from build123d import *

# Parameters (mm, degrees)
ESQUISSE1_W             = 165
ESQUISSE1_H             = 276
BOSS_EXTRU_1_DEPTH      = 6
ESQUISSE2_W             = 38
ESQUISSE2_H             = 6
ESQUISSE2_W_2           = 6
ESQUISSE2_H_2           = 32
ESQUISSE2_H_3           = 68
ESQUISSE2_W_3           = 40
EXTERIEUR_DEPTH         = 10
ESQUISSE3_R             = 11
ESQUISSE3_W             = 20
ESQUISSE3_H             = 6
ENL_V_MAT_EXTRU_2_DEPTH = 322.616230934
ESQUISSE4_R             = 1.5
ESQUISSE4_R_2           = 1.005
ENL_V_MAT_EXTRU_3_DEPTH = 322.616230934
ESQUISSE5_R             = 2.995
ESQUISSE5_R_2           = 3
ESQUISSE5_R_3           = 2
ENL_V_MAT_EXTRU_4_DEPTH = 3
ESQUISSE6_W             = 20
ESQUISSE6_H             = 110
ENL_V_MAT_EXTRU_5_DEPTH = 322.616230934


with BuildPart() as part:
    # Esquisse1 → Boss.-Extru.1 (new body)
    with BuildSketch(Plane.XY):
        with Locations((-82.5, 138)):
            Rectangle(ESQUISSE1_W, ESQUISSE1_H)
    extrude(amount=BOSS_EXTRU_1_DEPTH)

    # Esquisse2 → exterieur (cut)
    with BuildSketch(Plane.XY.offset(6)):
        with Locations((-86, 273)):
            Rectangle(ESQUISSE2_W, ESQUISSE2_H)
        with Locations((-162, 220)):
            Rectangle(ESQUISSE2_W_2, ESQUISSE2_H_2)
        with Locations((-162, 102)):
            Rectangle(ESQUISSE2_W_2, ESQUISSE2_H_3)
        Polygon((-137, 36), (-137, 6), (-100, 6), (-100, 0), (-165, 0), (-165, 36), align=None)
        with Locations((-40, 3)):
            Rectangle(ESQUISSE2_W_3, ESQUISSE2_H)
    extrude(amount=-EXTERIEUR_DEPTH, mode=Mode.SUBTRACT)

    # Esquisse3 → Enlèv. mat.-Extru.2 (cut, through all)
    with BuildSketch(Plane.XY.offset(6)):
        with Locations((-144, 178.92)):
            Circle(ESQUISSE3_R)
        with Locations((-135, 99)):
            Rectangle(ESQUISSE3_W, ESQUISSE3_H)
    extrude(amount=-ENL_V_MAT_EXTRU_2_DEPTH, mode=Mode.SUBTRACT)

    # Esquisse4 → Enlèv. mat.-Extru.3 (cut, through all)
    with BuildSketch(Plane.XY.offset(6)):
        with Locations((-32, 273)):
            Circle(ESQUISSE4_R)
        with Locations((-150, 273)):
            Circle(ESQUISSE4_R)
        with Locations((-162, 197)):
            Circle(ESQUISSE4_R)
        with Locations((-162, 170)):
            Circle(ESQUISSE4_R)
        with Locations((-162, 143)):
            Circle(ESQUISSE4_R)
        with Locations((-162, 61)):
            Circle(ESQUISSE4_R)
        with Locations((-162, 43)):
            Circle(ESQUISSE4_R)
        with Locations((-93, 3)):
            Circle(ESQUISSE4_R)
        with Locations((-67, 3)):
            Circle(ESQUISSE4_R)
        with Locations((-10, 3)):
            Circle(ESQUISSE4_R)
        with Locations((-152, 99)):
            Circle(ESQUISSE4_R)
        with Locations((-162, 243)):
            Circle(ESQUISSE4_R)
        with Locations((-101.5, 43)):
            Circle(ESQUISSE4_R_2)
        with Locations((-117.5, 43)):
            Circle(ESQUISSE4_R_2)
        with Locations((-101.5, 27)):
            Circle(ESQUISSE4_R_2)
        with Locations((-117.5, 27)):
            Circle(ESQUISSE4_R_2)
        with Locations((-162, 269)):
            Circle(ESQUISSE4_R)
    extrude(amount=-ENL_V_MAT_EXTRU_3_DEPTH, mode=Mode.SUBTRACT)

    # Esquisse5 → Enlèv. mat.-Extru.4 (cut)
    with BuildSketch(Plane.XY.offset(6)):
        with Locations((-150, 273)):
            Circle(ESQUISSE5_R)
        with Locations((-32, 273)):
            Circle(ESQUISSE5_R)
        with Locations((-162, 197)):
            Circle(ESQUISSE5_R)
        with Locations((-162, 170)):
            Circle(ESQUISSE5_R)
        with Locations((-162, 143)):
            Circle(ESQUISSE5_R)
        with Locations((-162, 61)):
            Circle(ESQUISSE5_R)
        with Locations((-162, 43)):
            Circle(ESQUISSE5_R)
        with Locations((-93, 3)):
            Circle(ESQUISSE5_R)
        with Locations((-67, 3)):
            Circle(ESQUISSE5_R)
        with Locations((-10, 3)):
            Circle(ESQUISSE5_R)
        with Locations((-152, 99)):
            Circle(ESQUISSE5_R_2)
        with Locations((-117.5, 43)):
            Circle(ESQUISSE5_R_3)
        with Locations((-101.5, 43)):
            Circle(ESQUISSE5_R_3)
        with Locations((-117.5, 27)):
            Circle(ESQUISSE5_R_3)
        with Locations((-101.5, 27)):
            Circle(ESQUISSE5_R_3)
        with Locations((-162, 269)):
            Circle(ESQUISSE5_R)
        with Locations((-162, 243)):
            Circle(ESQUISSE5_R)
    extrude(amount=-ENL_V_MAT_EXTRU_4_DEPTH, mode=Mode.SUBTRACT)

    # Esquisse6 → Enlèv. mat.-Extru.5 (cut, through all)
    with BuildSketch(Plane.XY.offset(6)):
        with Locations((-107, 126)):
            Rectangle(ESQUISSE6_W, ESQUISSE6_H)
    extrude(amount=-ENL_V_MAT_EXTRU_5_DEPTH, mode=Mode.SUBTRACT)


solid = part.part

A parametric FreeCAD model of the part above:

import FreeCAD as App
import Part
import Sketcher
from FreeCAD import Vector
Q = App.Units.Quantity

doc = App.newDocument("Part")
body = doc.addObject("PartDesign::Body", "Body")

sketch1 = body.newObject("Sketcher::SketchObject", "Sketch")
sketch1.AttachmentSupport = (doc.getObject("XY_Plane"), [""])
sketch1.MapMode = "FlatFace"
sketch1.addGeometry([
    Part.LineSegment(Vector(-165, 276, 0), Vector(-165, 0, 0)),
    Part.LineSegment(Vector(-165, 0, 0), Vector(0, 0, 0)),
    Part.LineSegment(Vector(0, 0, 0), Vector(0, 276, 0)),
    Part.LineSegment(Vector(0, 276, 0), Vector(-165, 276, 0)),
], False)
sketch1.addConstraint([
    Sketcher.Constraint("Coincident", 0, 2, 1, 1),
    Sketcher.Constraint("Coincident", 1, 2, 2, 1),
    Sketcher.Constraint("Coincident", 2, 2, 3, 1),
    Sketcher.Constraint("Coincident", 3, 2, 0, 1),
    Sketcher.Constraint("Vertical", 0),
    Sketcher.Constraint("Horizontal", 1),
    Sketcher.Constraint("Vertical", 2),
    Sketcher.Constraint("Horizontal", 3),
    Sketcher.Constraint("Coincident", 1, 2, -1, 1),
    Sketcher.Constraint("DistanceX", 1, 1, 1, 2, Q("165 mm")),
    Sketcher.Constraint("DistanceY", 0, 2, 0, 1, Q("276 mm")),
])
pad1 = body.newObject("PartDesign::Pad", "Pad")
pad1.Profile = sketch1
pad1.Length = 6

sketch2 = body.newObject("Sketcher::SketchObject", "Sketch001")
sketch2.AttachmentSupport = (doc.getObject("XY_Plane"), [""])
sketch2.MapMode = "FlatFace"
sketch2.AttachmentOffset = App.Placement(Vector(0, 0, 6), App.Rotation())
sketch2.addGeometry([
    Part.LineSegment(Vector(-105, 276, 0), Vector(-105, 270, 0)),
    Part.LineSegment(Vector(-105, 270, 0), Vector(-67, 270, 0)),
    Part.LineSegment(Vector(-67, 270, 0), Vector(-67, 276, 0)),
    Part.LineSegment(Vector(-67, 276, 0), Vector(-105, 276, 0)),
    Part.LineSegment(Vector(-165, 236, 0), Vector(-165, 204, 0)),
    Part.LineSegment(Vector(-165, 204, 0), Vector(-159, 204, 0)),
    Part.LineSegment(Vector(-159, 204, 0), Vector(-159, 236, 0)),
    Part.LineSegment(Vector(-159, 236, 0), Vector(-165, 236, 0)),
    Part.LineSegment(Vector(-165, 136, 0), Vector(-165, 68, 0)),
    Part.LineSegment(Vector(-165, 68, 0), Vector(-159, 68, 0)),
    Part.LineSegment(Vector(-159, 68, 0), Vector(-159, 136, 0)),
    Part.LineSegment(Vector(-159, 136, 0), Vector(-165, 136, 0)),
    Part.LineSegment(Vector(-137, 6, 0), Vector(-137, 36, 0)),
    Part.LineSegment(Vector(-137, 36, 0), Vector(-165, 36, 0)),
    Part.LineSegment(Vector(-165, 36, 0), Vector(-165, 0, 0)),
    Part.LineSegment(Vector(-165, 0, 0), Vector(-100, 0, 0)),
    Part.LineSegment(Vector(-100, 0, 0), Vector(-100, 6, 0)),
    Part.LineSegment(Vector(-100, 6, 0), Vector(-137, 6, 0)),
    Part.LineSegment(Vector(-60, 6, 0), Vector(-60, 0, 0)),
    Part.LineSegment(Vector(-60, 0, 0), Vector(-20, 0, 0)),
    Part.LineSegment(Vector(-20, 0, 0), Vector(-20, 6, 0)),
    Part.LineSegment(Vector(-20, 6, 0), Vector(-60, 6, 0)),
], False)
sketch2.addConstraint([
    Sketcher.Constraint("Coincident", 0, 2, 1, 1),
    Sketcher.Constraint("Coincident", 1, 2, 2, 1),
    Sketcher.Constraint("Coincident", 2, 2, 3, 1),
    Sketcher.Constraint("Coincident", 3, 2, 0, 1),
    Sketcher.Constraint("Coincident", 4, 2, 5, 1),
    Sketcher.Constraint("Coincident", 5, 2, 6, 1),
    Sketcher.Constraint("Coincident", 6, 2, 7, 1),
    Sketcher.Constraint("Coincident", 7, 2, 4, 1),
    Sketcher.Constraint("Coincident", 8, 2, 9, 1),
    Sketcher.Constraint("Coincident", 9, 2, 10, 1),
    Sketcher.Constraint("Coincident", 10, 2, 11, 1),
    Sketcher.Constraint("Coincident", 11, 2, 8, 1),
    Sketcher.Constraint("Coincident", 12, 2, 13, 1),
    Sketcher.Constraint("Coincident", 13, 2, 14, 1),
    Sketcher.Constraint("Coincident", 14, 2, 15, 1),
    Sketcher.Constraint("Coincident", 15, 2, 16, 1),
    Sketcher.Constraint("Coincident", 16, 2, 17, 1),
    Sketcher.Constraint("Coincident", 17, 2, 12, 1),
    Sketcher.Constraint("Coincident", 18, 2, 19, 1),
    Sketcher.Constraint("Coincident", 19, 2, 20, 1),
    Sketcher.Constraint("Coincident", 20, 2, 21, 1),
    Sketcher.Constraint("Coincident", 21, 2, 18, 1),
    Sketcher.Constraint("Vertical", 0),
    Sketcher.Constraint("Horizontal", 1),
    Sketcher.Constraint("Vertical", 2),
    Sketcher.Constraint("Horizontal", 3),
    Sketcher.Constraint("Vertical", 4),
    Sketcher.Constraint("Horizontal", 5),
    Sketcher.Constraint("Vertical", 6),
    Sketcher.Constraint("Horizontal", 7),
    Sketcher.Constraint("Vertical", 8),
    Sketcher.Constraint("Horizontal", 9),
    Sketcher.Constraint("Vertical", 10),
    Sketcher.Constraint("Horizontal", 11),
    Sketcher.Constraint("Vertical", 12),
    Sketcher.Constraint("Horizontal", 13),
    Sketcher.Constraint("Vertical", 14),
    Sketcher.Constraint("Horizontal", 15),
    Sketcher.Constraint("Vertical", 16),
    Sketcher.Constraint("Horizontal", 17),
    Sketcher.Constraint("Vertical", 18),
    Sketcher.Constraint("Horizontal", 19),
    Sketcher.Constraint("Vertical", 20),
    Sketcher.Constraint("Horizontal", 21),
    Sketcher.Constraint("PointOnObject", 14, 2, -1),
    Sketcher.Constraint("PointOnObject", 18, 2, -1),
    Sketcher.Constraint("Horizontal", 17, 2, 20, 2),
    Sketcher.Constraint("Vertical", 7, 2, 8, 2),
    Sketcher.Constraint("Vertical", 6, 2, 9, 2),
    Sketcher.Constraint("Vertical", 11, 2, 13, 2),
    Sketcher.Constraint("Equal", 11, 0),
    Sketcher.Constraint("Equal", 2, 16),
    Sketcher.Constraint("DistanceX", 1, 1, 1, 2, Q("38 mm")),
    Sketcher.Constraint("DistanceX", 5, 1, 5, 2, Q("6 mm")),
    Sketcher.Constraint("DistanceX", 13, 2, 13, 1, Q("28 mm")),
    Sketcher.Constraint("DistanceX", 15, 1, 15, 2, Q("65 mm")),
    Sketcher.Constraint("DistanceX", 19, 1, 19, 2, Q("40 mm")),
    Sketcher.Constraint("DistanceY", 4, 2, 4, 1, Q("32 mm")),
    Sketcher.Constraint("DistanceY", 8, 2, 8, 1, Q("68 mm")),
    Sketcher.Constraint("DistanceY", 12, 1, 12, 2, Q("30 mm")),
    Sketcher.Constraint("DistanceX", 0, 2, -1, 1, Q("105 mm")),
    Sketcher.Constraint("DistanceY", -1, 1, 0, 2, Q("270 mm")),
    Sketcher.Constraint("DistanceX", 4, 2, -1, 1, Q("165 mm")),
    Sketcher.Constraint("DistanceY", -1, 1, 4, 2, Q("204 mm")),
    Sketcher.Constraint("DistanceY", -1, 1, 8, 2, Q("68 mm")),
    Sketcher.Constraint("DistanceX", 18, 2, -1, 1, Q("60 mm")),
])
pocket1 = body.newObject("PartDesign::Pocket", "Pocket")
pocket1.Profile = sketch2
pocket1.Length = 10

sketch3 = body.newObject("Sketcher::SketchObject", "Sketch002")
sketch3.AttachmentSupport = (doc.getObject("XY_Plane"), [""])
sketch3.MapMode = "FlatFace"
sketch3.AttachmentOffset = App.Placement(Vector(0, 0, 6), App.Rotation())
sketch3.addGeometry([
    Part.Circle(Vector(-144, 179, 0), Vector(0, 0, 1), 11),
    Part.LineSegment(Vector(-145, 102, 0), Vector(-145, 96, 0)),
    Part.LineSegment(Vector(-145, 96, 0), Vector(-125, 96, 0)),
    Part.LineSegment(Vector(-125, 96, 0), Vector(-125, 102, 0)),
    Part.LineSegment(Vector(-125, 102, 0), Vector(-145, 102, 0)),
], False)
sketch3.addConstraint([
    Sketcher.Constraint("Coincident", 1, 2, 2, 1),
    Sketcher.Constraint("Coincident", 2, 2, 3, 1),
    Sketcher.Constraint("Coincident", 3, 2, 4, 1),
    Sketcher.Constraint("Coincident", 4, 2, 1, 1),
    Sketcher.Constraint("Vertical", 1),
    Sketcher.Constraint("Horizontal", 2),
    Sketcher.Constraint("Vertical", 3),
    Sketcher.Constraint("Horizontal", 4),
    Sketcher.Constraint("Diameter", 0, Q("22 mm")),
    Sketcher.Constraint("DistanceX", 2, 1, 2, 2, Q("20 mm")),
    Sketcher.Constraint("DistanceY", 1, 2, 1, 1, Q("6 mm")),
    Sketcher.Constraint("DistanceX", 0, 3, -1, 1, Q("144 mm")),
    Sketcher.Constraint("DistanceX", 1, 2, -1, 1, Q("145 mm")),
    Sketcher.Constraint("DistanceY", -1, 1, 1, 2, Q("96 mm")),
    Sketcher.Constraint("DistanceY", -1, 1, 0, 3, Q("178.92 mm")),
])
pocket2 = body.newObject("PartDesign::Pocket", "Pocket001")
pocket2.Profile = sketch3
pocket2.Type = "ThroughAll"

sketch4 = body.newObject("Sketcher::SketchObject", "Sketch003")
sketch4.AttachmentSupport = (doc.getObject("XY_Plane"), [""])
sketch4.MapMode = "FlatFace"
sketch4.AttachmentOffset = App.Placement(Vector(0, 0, 6), App.Rotation())
sketch4.addGeometry([
    Part.Circle(Vector(-32, 273, 0), Vector(0, 0, 1), 1.5),
    Part.Circle(Vector(-150, 273, 0), Vector(0, 0, 1), 1.5),
    Part.Circle(Vector(-162, 197, 0), Vector(0, 0, 1), 1.5),
    Part.Circle(Vector(-162, 170, 0), Vector(0, 0, 1), 1.5),
    Part.Circle(Vector(-162, 143, 0), Vector(0, 0, 1), 1.5),
    Part.Circle(Vector(-162, 61, 0), Vector(0, 0, 1), 1.5),
    Part.Circle(Vector(-162, 43, 0), Vector(0, 0, 1), 1.5),
    Part.Circle(Vector(-93, 3, 0), Vector(0, 0, 1), 1.5),
    Part.Circle(Vector(-67, 3, 0), Vector(0, 0, 1), 1.5),
    Part.Circle(Vector(-10, 3, 0), Vector(0, 0, 1), 1.5),
    Part.Circle(Vector(-152, 99, 0), Vector(0, 0, 1), 1.5),
    Part.Circle(Vector(-162, 243, 0), Vector(0, 0, 1), 1.5),
    Part.Circle(Vector(-101.5, 43, 0), Vector(0, 0, 1), 1),
    Part.Circle(Vector(-117.5, 43, 0), Vector(0, 0, 1), 1),
    Part.Circle(Vector(-101.5, 27, 0), Vector(0, 0, 1), 1),
    Part.Circle(Vector(-117.5, 27, 0), Vector(0, 0, 1), 1),
    Part.Circle(Vector(-162, 269, 0), Vector(0, 0, 1), 1.5),
], False)
sketch4.addConstraint([
    Sketcher.Constraint("Equal", 0, 1),
    Sketcher.Constraint("Equal", 1, 2),
    Sketcher.Constraint("Equal", 2, 3),
    Sketcher.Constraint("Equal", 3, 4),
    Sketcher.Constraint("Equal", 4, 5),
    Sketcher.Constraint("Equal", 5, 6),
    Sketcher.Constraint("Equal", 6, 7),
    Sketcher.Constraint("Equal", 7, 8),
    Sketcher.Constraint("Equal", 8, 9),
    Sketcher.Constraint("Equal", 9, 10),
    Sketcher.Constraint("Equal", 10, 11),
    Sketcher.Constraint("Equal", 12, 13),
    Sketcher.Constraint("Equal", 13, 14),
    Sketcher.Constraint("Equal", 14, 15),
    Sketcher.Constraint("Equal", 11, 16),
    Sketcher.Constraint("Horizontal", 0, 3, 1, 3),
    Sketcher.Constraint("Horizontal", 7, 3, 8, 3),
    Sketcher.Constraint("Horizontal", 8, 3, 9, 3),
    Sketcher.Constraint("Horizontal", 6, 3, 12, 3),
    Sketcher.Constraint("Horizontal", 12, 3, 13, 3),
    Sketcher.Constraint("Horizontal", 14, 3, 15, 3),
    Sketcher.Constraint("Vertical", 2, 3, 3, 3),
    Sketcher.Constraint("Vertical", 3, 3, 4, 3),
    Sketcher.Constraint("Vertical", 4, 3, 5, 3),
    Sketcher.Constraint("Vertical", 5, 3, 6, 3),
    Sketcher.Constraint("Vertical", 6, 3, 11, 3),
    Sketcher.Constraint("Vertical", 12, 3, 14, 3),
    Sketcher.Constraint("Vertical", 13, 3, 15, 3),
    Sketcher.Constraint("Vertical", 11, 3, 16, 3),
    Sketcher.Constraint("Diameter", 0, Q("3 mm")),
    Sketcher.Constraint("Diameter", 12, Q("2.01 mm")),
    Sketcher.Constraint("DistanceX", 0, 3, -1, 1, Q("32 mm")),
    Sketcher.Constraint("DistanceY", -1, 1, 0, 3, Q("273 mm")),
    Sketcher.Constraint("DistanceX", 1, 3, -1, 1, Q("150 mm")),
    Sketcher.Constraint("DistanceX", 2, 3, -1, 1, Q("162 mm")),
    Sketcher.Constraint("DistanceY", -1, 1, 2, 3, Q("197 mm")),
    Sketcher.Constraint("DistanceY", -1, 1, 3, 3, Q("170 mm")),
    Sketcher.Constraint("DistanceY", -1, 1, 4, 3, Q("143 mm")),
    Sketcher.Constraint("DistanceY", -1, 1, 5, 3, Q("61 mm")),
    Sketcher.Constraint("DistanceY", -1, 1, 6, 3, Q("43 mm")),
    Sketcher.Constraint("DistanceX", 7, 3, -1, 1, Q("93 mm")),
    Sketcher.Constraint("DistanceY", -1, 1, 7, 3, Q("3 mm")),
    Sketcher.Constraint("DistanceX", 8, 3, -1, 1, Q("67 mm")),
    Sketcher.Constraint("DistanceX", 9, 3, -1, 1, Q("10 mm")),
    Sketcher.Constraint("DistanceX", 10, 3, -1, 1, Q("152 mm")),
    Sketcher.Constraint("DistanceY", -1, 1, 10, 3, Q("99 mm")),
    Sketcher.Constraint("DistanceY", -1, 1, 11, 3, Q("243 mm")),
    Sketcher.Constraint("DistanceY", -1, 1, 14, 3, Q("27 mm")),
    Sketcher.Constraint("DistanceY", -1, 1, 16, 3, Q("269 mm")),
    Sketcher.Constraint("DistanceX", 13, 3, 12, 3, Q("16 mm")),
    Sketcher.Constraint("DistanceX", 12, 3, -1, 1, Q("101.5 mm")),
])
pocket3 = body.newObject("PartDesign::Pocket", "Pocket002")
pocket3.Profile = sketch4
pocket3.Type = "ThroughAll"

sketch5 = body.newObject("Sketcher::SketchObject", "Sketch004")
sketch5.AttachmentSupport = (doc.getObject("XY_Plane"), [""])
sketch5.MapMode = "FlatFace"
sketch5.AttachmentOffset = App.Placement(Vector(0, 0, 6), App.Rotation())
sketch5.addGeometry([
    Part.Circle(Vector(-150, 273, 0), Vector(0, 0, 1), 3),
    Part.Circle(Vector(-32, 273, 0), Vector(0, 0, 1), 3),
    Part.Circle(Vector(-162, 197, 0), Vector(0, 0, 1), 3),
    Part.Circle(Vector(-162, 170, 0), Vector(0, 0, 1), 3),
    Part.Circle(Vector(-162, 143, 0), Vector(0, 0, 1), 3),
    Part.Circle(Vector(-162, 61, 0), Vector(0, 0, 1), 3),
    Part.Circle(Vector(-162, 43, 0), Vector(0, 0, 1), 3),
    Part.Circle(Vector(-93, 3, 0), Vector(0, 0, 1), 3),
    Part.Circle(Vector(-67, 3, 0), Vector(0, 0, 1), 3),
    Part.Circle(Vector(-10, 3, 0), Vector(0, 0, 1), 3),
    Part.Circle(Vector(-152, 99, 0), Vector(0, 0, 1), 3),
    Part.Circle(Vector(-117.5, 43, 0), Vector(0, 0, 1), 2),
    Part.Circle(Vector(-101.5, 43, 0), Vector(0, 0, 1), 2),
    Part.Circle(Vector(-117.5, 27, 0), Vector(0, 0, 1), 2),
    Part.Circle(Vector(-101.5, 27, 0), Vector(0, 0, 1), 2),
    Part.Circle(Vector(-162, 269, 0), Vector(0, 0, 1), 3),
    Part.Circle(Vector(-162, 243, 0), Vector(0, 0, 1), 3),
], False)
sketch5.addConstraint([
    Sketcher.Constraint("Equal", 0, 1),
    Sketcher.Constraint("Equal", 1, 2),
    Sketcher.Constraint("Equal", 2, 3),
    Sketcher.Constraint("Equal", 3, 4),
    Sketcher.Constraint("Equal", 4, 5),
    Sketcher.Constraint("Equal", 5, 6),
    Sketcher.Constraint("Equal", 6, 7),
    Sketcher.Constraint("Equal", 7, 8),
    Sketcher.Constraint("Equal", 8, 9),
    Sketcher.Constraint("Equal", 11, 12),
    Sketcher.Constraint("Equal", 12, 13),
    Sketcher.Constraint("Equal", 13, 14),
    Sketcher.Constraint("Equal", 9, 15),
    Sketcher.Constraint("Equal", 15, 16),
    Sketcher.Constraint("Horizontal", 0, 3, 1, 3),
    Sketcher.Constraint("Horizontal", 7, 3, 8, 3),
    Sketcher.Constraint("Horizontal", 8, 3, 9, 3),
    Sketcher.Constraint("Horizontal", 6, 3, 11, 3),
    Sketcher.Constraint("Horizontal", 11, 3, 12, 3),
    Sketcher.Constraint("Horizontal", 13, 3, 14, 3),
    Sketcher.Constraint("Vertical", 2, 3, 3, 3),
    Sketcher.Constraint("Vertical", 3, 3, 4, 3),
    Sketcher.Constraint("Vertical", 4, 3, 5, 3),
    Sketcher.Constraint("Vertical", 5, 3, 6, 3),
    Sketcher.Constraint("Vertical", 11, 3, 13, 3),
    Sketcher.Constraint("Vertical", 12, 3, 14, 3),
    Sketcher.Constraint("Vertical", 6, 3, 15, 3),
    Sketcher.Constraint("Vertical", 15, 3, 16, 3),
    Sketcher.Constraint("Diameter", 10, Q("6 mm")),
    Sketcher.Constraint("Diameter", 11, Q("4 mm")),
    Sketcher.Constraint("Diameter", 0, Q("5.99 mm")),
    Sketcher.Constraint("DistanceX", 0, 3, -1, 1, Q("150 mm")),
    Sketcher.Constraint("DistanceY", -1, 1, 0, 3, Q("273 mm")),
    Sketcher.Constraint("DistanceX", 1, 3, -1, 1, Q("32 mm")),
    Sketcher.Constraint("DistanceX", 2, 3, -1, 1, Q("162 mm")),
    Sketcher.Constraint("DistanceY", -1, 1, 2, 3, Q("197 mm")),
    Sketcher.Constraint("DistanceY", -1, 1, 3, 3, Q("170 mm")),
    Sketcher.Constraint("DistanceY", -1, 1, 4, 3, Q("143 mm")),
    Sketcher.Constraint("DistanceY", -1, 1, 5, 3, Q("61 mm")),
    Sketcher.Constraint("DistanceY", -1, 1, 6, 3, Q("43 mm")),
    Sketcher.Constraint("DistanceX", 7, 3, -1, 1, Q("93 mm")),
    Sketcher.Constraint("DistanceY", -1, 1, 7, 3, Q("3 mm")),
    Sketcher.Constraint("DistanceX", 8, 3, -1, 1, Q("67 mm")),
    Sketcher.Constraint("DistanceX", 9, 3, -1, 1, Q("10 mm")),
    Sketcher.Constraint("DistanceX", 10, 3, -1, 1, Q("152 mm")),
    Sketcher.Constraint("DistanceY", -1, 1, 10, 3, Q("99 mm")),
    Sketcher.Constraint("DistanceY", -1, 1, 13, 3, Q("27 mm")),
    Sketcher.Constraint("DistanceY", -1, 1, 15, 3, Q("269 mm")),
    Sketcher.Constraint("DistanceY", -1, 1, 16, 3, Q("243 mm")),
    Sketcher.Constraint("DistanceX", 11, 3, 12, 3, Q("16 mm")),
    Sketcher.Constraint("DistanceX", 11, 3, -1, 1, Q("117.5 mm")),
])
pocket4 = body.newObject("PartDesign::Pocket", "Pocket003")
pocket4.Profile = sketch5
pocket4.Length = 3

sketch6 = body.newObject("Sketcher::SketchObject", "Sketch005")
sketch6.AttachmentSupport = (doc.getObject("XY_Plane"), [""])
sketch6.MapMode = "FlatFace"
sketch6.AttachmentOffset = App.Placement(Vector(0, 0, 6), App.Rotation())
sketch6.addGeometry([
    Part.LineSegment(Vector(-117, 181, 0), Vector(-117, 71, 0)),
    Part.LineSegment(Vector(-117, 71, 0), Vector(-97, 71, 0)),
    Part.LineSegment(Vector(-97, 71, 0), Vector(-97, 181, 0)),
    Part.LineSegment(Vector(-97, 181, 0), Vector(-117, 181, 0)),
], False)
sketch6.addConstraint([
    Sketcher.Constraint("Coincident", 0, 2, 1, 1),
    Sketcher.Constraint("Coincident", 1, 2, 2, 1),
    Sketcher.Constraint("Coincident", 2, 2, 3, 1),
    Sketcher.Constraint("Coincident", 3, 2, 0, 1),
    Sketcher.Constraint("Vertical", 0),
    Sketcher.Constraint("Horizontal", 1),
    Sketcher.Constraint("Vertical", 2),
    Sketcher.Constraint("Horizontal", 3),
    Sketcher.Constraint("DistanceX", 1, 1, 1, 2, Q("20 mm")),
    Sketcher.Constraint("DistanceY", 0, 2, 0, 1, Q("110 mm")),
    Sketcher.Constraint("DistanceX", 0, 2, -1, 1, Q("117 mm")),
    Sketcher.Constraint("DistanceY", -1, 1, 0, 2, Q("71 mm")),
])
pocket5 = body.newObject("PartDesign::Pocket", "Pocket004")
pocket5.Profile = sketch6
pocket5.Type = "ThroughAll"

doc.recompute()
